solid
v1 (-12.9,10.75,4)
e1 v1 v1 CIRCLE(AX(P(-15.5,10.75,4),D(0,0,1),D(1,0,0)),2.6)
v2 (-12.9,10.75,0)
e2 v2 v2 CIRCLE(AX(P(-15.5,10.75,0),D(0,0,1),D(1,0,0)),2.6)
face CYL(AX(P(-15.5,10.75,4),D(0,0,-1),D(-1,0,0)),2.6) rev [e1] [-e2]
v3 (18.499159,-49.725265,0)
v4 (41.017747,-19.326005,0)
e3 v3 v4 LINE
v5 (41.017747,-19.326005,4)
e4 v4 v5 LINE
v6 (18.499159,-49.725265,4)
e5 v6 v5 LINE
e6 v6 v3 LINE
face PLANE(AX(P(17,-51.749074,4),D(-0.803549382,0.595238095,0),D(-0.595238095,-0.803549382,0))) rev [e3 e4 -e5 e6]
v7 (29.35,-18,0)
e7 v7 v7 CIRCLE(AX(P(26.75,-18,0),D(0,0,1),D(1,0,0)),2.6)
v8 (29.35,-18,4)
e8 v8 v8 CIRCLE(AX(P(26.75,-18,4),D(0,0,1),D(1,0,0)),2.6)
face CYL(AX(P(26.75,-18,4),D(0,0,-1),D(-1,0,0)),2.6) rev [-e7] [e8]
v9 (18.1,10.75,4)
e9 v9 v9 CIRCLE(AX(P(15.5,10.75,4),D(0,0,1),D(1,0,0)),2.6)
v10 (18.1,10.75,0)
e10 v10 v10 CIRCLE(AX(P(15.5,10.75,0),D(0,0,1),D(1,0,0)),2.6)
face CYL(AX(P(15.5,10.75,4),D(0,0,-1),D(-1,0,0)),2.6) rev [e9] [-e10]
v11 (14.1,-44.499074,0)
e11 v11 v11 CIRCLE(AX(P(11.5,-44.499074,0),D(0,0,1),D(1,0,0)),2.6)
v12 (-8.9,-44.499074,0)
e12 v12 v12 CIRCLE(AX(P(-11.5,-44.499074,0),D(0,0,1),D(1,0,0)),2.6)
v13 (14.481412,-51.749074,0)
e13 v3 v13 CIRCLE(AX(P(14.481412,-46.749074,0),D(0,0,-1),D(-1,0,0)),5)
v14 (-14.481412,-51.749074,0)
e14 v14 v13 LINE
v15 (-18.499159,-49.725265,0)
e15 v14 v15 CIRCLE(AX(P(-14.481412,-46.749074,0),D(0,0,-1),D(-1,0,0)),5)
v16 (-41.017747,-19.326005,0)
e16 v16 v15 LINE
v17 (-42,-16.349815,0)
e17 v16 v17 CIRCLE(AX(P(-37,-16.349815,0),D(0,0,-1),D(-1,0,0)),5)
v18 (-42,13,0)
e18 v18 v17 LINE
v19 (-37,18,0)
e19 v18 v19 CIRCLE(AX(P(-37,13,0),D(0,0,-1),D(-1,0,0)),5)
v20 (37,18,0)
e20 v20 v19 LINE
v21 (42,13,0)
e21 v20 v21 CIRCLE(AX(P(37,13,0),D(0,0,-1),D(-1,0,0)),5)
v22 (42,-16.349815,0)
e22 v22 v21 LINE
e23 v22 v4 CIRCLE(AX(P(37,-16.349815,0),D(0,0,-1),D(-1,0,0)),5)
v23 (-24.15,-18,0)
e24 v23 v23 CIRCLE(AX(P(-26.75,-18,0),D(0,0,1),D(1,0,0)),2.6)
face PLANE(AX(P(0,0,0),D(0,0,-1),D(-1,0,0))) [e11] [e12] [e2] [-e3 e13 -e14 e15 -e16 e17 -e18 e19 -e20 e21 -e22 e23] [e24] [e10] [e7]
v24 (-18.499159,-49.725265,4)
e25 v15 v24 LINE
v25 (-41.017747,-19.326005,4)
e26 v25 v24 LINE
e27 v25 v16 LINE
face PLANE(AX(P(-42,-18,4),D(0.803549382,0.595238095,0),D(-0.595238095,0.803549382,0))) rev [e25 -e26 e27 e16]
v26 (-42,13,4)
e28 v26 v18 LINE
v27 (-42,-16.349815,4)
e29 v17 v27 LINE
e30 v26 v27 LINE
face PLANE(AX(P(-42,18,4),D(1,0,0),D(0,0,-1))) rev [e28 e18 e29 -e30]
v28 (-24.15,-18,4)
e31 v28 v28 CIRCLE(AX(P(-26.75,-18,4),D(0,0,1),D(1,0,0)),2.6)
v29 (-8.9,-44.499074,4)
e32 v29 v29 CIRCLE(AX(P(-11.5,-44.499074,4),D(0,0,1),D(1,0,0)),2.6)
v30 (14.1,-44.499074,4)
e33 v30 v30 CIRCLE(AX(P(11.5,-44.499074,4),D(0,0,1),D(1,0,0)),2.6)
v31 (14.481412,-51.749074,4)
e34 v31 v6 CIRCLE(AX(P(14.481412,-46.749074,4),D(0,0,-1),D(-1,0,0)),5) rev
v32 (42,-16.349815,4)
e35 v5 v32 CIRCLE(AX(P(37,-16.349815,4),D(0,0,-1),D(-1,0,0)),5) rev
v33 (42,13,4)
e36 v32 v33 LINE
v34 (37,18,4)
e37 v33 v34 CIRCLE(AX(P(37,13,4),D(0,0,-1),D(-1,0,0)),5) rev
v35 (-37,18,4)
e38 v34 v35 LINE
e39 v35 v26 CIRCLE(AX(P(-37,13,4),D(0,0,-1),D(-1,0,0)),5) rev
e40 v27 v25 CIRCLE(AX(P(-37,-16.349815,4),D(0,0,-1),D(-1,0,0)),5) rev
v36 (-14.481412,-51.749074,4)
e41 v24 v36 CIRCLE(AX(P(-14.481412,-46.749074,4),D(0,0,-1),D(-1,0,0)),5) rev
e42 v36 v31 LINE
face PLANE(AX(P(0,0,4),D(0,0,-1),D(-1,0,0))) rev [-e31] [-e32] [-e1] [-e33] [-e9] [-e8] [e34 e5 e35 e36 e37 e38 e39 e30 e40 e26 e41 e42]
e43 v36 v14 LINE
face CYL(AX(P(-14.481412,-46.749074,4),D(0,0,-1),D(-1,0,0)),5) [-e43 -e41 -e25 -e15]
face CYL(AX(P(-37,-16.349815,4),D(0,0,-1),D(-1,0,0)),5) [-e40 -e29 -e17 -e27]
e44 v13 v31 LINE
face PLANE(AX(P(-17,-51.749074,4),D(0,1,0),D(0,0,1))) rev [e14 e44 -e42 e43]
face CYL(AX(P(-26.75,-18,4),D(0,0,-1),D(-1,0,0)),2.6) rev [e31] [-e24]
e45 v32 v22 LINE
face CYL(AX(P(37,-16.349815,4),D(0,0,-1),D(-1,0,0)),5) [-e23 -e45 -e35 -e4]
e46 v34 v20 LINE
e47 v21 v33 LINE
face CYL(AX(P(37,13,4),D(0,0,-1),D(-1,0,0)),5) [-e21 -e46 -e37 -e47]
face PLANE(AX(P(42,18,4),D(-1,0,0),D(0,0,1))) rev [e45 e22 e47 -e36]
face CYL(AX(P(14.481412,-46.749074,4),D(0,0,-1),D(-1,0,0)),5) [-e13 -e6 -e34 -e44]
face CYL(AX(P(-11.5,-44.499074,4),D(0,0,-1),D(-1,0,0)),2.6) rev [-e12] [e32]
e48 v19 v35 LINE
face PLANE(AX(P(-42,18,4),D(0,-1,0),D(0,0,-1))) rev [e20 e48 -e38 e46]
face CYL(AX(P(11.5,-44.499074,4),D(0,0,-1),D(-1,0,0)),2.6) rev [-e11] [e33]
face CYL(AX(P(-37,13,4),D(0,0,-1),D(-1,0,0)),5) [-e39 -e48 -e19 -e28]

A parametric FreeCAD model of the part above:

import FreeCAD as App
import Part
import Sketcher
Q = App.Units.Quantity


def edges_at(feature, points):
    """Names of the edges that pass closest to the given points."""
    edges = feature.Shape.Edges
    near = lambda p: min(range(len(edges)), key=lambda i: edges[i].distToShape(Part.Vertex(*p))[0])
    return sorted({f"Edge{near(p) + 1}" for p in points})

doc = App.newDocument("Part")
params = doc.addObject("Spreadsheet::Sheet", "Params")
for row, (alias, value) in enumerate([
    ("sketch1_diameter", "5.2 mm"),
    ("sketch1_width", "34 mm"),
    ("sketch1_width2", "84 mm"),
    ("sketch1_height", "36 mm"),
    ("sketch1_length", "42 mm"),
    ("pad1_length", "4 mm"),
    ("fillet_radius", "5 mm"),
], start=1):
    params.set(f"A{row}", alias)
    params.set(f"B{row}", "=" + value)
    params.setAlias(f"B{row}", alias)

body = doc.addObject("PartDesign::Body", "Body")

# Sketch on XY plane
sketch1 = doc.addObject("Sketcher::SketchObject", "Sketch")
body.addObject(sketch1)
sketch1.AttachmentSupport = (doc.XY_Plane, [""])
sketch1.MapMode = "FlatFace"
sketch1.addGeometry(Part.LineSegment(App.Vector(-17, -51.7, 0), App.Vector(17, -51.7, 0)), False)
sketch1.addGeometry(Part.LineSegment(App.Vector(17, -51.7, 0), App.Vector(42, -18, 0)), False)
sketch1.addGeometry(Part.LineSegment(App.Vector(42, -18, 0), App.Vector(42, 18, 0)), False)
sketch1.addGeometry(Part.LineSegment(App.Vector(42, 18, 0), App.Vector(-42, 18, 0)), False)
sketch1.addGeometry(Part.LineSegment(App.Vector(-42, 18, 0), App.Vector(-42, -18, 0)), False)
sketch1.addGeometry(Part.LineSegment(App.Vector(-42, -18, 0), App.Vector(-17, -51.7, 0)), False)
sketch1.addGeometry(Part.Circle(App.Vector(-11.5, -44.5, 0), App.Vector(0, 0, 1), 2.6), False)
sketch1.addGeometry(Part.Circle(App.Vector(-26.8, -18, 0), App.Vector(0, 0, 1), 2.6), False)
sketch1.addGeometry(Part.Circle(App.Vector(11.5, -44.5, 0), App.Vector(0, 0, 1), 2.6), False)
sketch1.addGeometry(Part.Circle(App.Vector(26.8, -18, 0), App.Vector(0, 0, 1), 2.6), False)
sketch1.addGeometry(Part.Circle(App.Vector(-15.5, 10.8, 0), App.Vector(0, 0, 1), 2.6), False)
sketch1.addGeometry(Part.Circle(App.Vector(15.5, 10.8, 0), App.Vector(0, 0, 1), 2.6), False)
sketch1.addConstraint(Sketcher.Constraint("Coincident", 0, 2, 1, 1))
sketch1.addConstraint(Sketcher.Constraint("Coincident", 1, 2, 2, 1))
sketch1.addConstraint(Sketcher.Constraint("Coincident", 2, 2, 3, 1))
sketch1.addConstraint(Sketcher.Constraint("Coincident", 3, 2, 4, 1))
sketch1.addConstraint(Sketcher.Constraint("Coincident", 4, 2, 5, 1))
sketch1.addConstraint(Sketcher.Constraint("Coincident", 5, 2, 0, 1))
sketch1.addConstraint(Sketcher.Constraint("Horizontal", 0))
sketch1.addConstraint(Sketcher.Constraint("Vertical", 2))
sketch1.addConstraint(Sketcher.Constraint("Horizontal", 3))
sketch1.addConstraint(Sketcher.Constraint("Vertical", 4))
sketch1.addConstraint(Sketcher.Constraint("Equal", 6, 7))
sketch1.addConstraint(Sketcher.Constraint("Equal", 7, 8))
sketch1.addConstraint(Sketcher.Constraint("Equal", 8, 9))
sketch1.addConstraint(Sketcher.Constraint("Equal", 9, 10))
sketch1.addConstraint(Sketcher.Constraint("Equal", 10, 11))
sketch1.addConstraint(Sketcher.Constraint("Symmetric", 1, 2, 3, 2, -1, 1))
sketch1.addConstraint(Sketcher.Constraint("Symmetric", 6, 3, 8, 3, -2))
sketch1.addConstraint(Sketcher.Constraint("Symmetric", 7, 3, 9, 3, -2))
sketch1.addConstraint(Sketcher.Constraint("Symmetric", 10, 3, 11, 3, -2))
sketch1.addConstraint(Sketcher.Constraint("Horizontal", 9, 3, 1, 2))
sketch1.addConstraint(Sketcher.Constraint("Horizontal", 1, 2, 4, 2))
sketch1.addConstraint(Sketcher.Constraint("Equal", 1, 5))
sketch1.addConstraint(Sketcher.Constraint("Diameter", 6, Q("5.2 mm")))
sketch1.addConstraint(Sketcher.Constraint("DistanceX", 0, 1, 0, 2, Q("34 mm")))
sketch1.addConstraint(Sketcher.Constraint("DistanceX", 3, 2, 3, 1, Q("84 mm")))
sketch1.addConstraint(Sketcher.Constraint("DistanceY", 2, 1, 2, 2, Q("36 mm")))
sketch1.addConstraint(Sketcher.Constraint("Distance", 1, Q("42 mm")))
sketch1.addConstraint(Sketcher.Constraint("DistanceX", 6, 3, 8, 3, Q("23 mm")))
sketch1.addConstraint(Sketcher.Constraint("DistanceX", 10, 3, 6, 3, Q("4 mm")))
sketch1.addConstraint(Sketcher.Constraint("DistanceX", 7, 3, 9, 3, Q("53.5 mm")))
sketch1.addConstraint(Sketcher.Constraint("DistanceY", -1, 1, 10, 3, Q("10.75 mm")))
sketch1.addConstraint(Sketcher.Constraint("DistanceY", 0, 2, 8, 3, Q("7.25 mm")))
sketch1.setExpression("Constraints[22]", "Params.sketch1_diameter")
sketch1.setExpression("Constraints[23]", "Params.sketch1_width")
sketch1.setExpression("Constraints[24]", "Params.sketch1_width2")
sketch1.setExpression("Constraints[25]", "Params.sketch1_height")
sketch1.setExpression("Constraints[26]", "Params.sketch1_length")
pad1 = doc.addObject("PartDesign::Pad", "Pad")
body.addObject(pad1)
pad1.Profile = sketch1
pad1.setExpression("Length", "Params.pad1_length")
doc.recompute()

fillet = doc.addObject("PartDesign::Fillet", "Fillet")
body.addObject(fillet)
fillet.Base = (pad1, edges_at(pad1, [
    (17, -51.749, 2),
    (-17, -51.749, 2),
    (-42, -18, 2),
    (-42, 18, 2),
    (42, 18, 2),
    (42, -18, 2),
]))
fillet.setExpression("Radius", "Params.fillet_radius")

doc.recompute()
